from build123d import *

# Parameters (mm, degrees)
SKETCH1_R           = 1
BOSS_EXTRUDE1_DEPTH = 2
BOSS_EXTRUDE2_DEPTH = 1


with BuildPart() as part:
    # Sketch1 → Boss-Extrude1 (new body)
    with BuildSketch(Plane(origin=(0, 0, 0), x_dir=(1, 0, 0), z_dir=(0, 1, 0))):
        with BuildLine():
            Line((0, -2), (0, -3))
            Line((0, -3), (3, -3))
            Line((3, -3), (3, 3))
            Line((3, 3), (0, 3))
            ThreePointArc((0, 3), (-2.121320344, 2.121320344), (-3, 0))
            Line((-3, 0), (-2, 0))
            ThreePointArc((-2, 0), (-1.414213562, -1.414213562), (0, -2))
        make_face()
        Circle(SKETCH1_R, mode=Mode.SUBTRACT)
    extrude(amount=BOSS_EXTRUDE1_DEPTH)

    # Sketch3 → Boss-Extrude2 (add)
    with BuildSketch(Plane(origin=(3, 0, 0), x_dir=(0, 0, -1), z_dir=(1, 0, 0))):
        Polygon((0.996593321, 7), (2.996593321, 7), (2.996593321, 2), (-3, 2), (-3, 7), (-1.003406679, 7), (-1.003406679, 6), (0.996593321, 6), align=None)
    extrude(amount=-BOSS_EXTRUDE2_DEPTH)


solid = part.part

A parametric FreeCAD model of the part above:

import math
import FreeCAD as App
import Part
import Sketcher
Q = App.Units.Quantity

doc = App.newDocument("Part")
body = doc.addObject("PartDesign::Body", "Body")

# Sketch on XZ plane
sketch1 = body.newObject("Sketcher::SketchObject", "Sketch")
sketch1.AttachmentSupport = (doc.getObject("XZ_Plane"), [""])
sketch1.MapMode = "FlatFace"
sketch1.addGeometry([
    Part.LineSegment(App.Vector(0, 2, 0), App.Vector(0, 3, 0)),  # 0
    Part.LineSegment(App.Vector(0, 3, 0), App.Vector(3, 3, 0)),  # 1
    Part.LineSegment(App.Vector(3, 3, 0), App.Vector(3, -3, 0)),  # 2
    Part.LineSegment(App.Vector(3, -3, 0), App.Vector(0, -3, 0)),  # 3
    Part.ArcOfCircle(Part.Circle(App.Vector(0, 0, 0), App.Vector(0, 0, 1), 3), math.radians(180), math.radians(270)),  # 4
    Part.LineSegment(App.Vector(-3, 0, 0), App.Vector(-2, 0, 0)),  # 5
    Part.ArcOfCircle(Part.Circle(App.Vector(0, 0, 0), App.Vector(0, 0, 1), 2), math.radians(90), math.radians(180)),  # 6
    Part.Circle(App.Vector(0, 0, 0), App.Vector(0, 0, 1), 1),  # 7
], False)
sketch1.addConstraint([
    Sketcher.Constraint("Coincident", 0, 2, 1, 1),
    Sketcher.Constraint("Coincident", 1, 2, 2, 1),
    Sketcher.Constraint("Coincident", 2, 2, 3, 1),
    Sketcher.Constraint("Tangent", 3, 2, 4, 2),
    Sketcher.Constraint("Coincident", 4, 1, 5, 1),
    Sketcher.Constraint("Coincident", 5, 2, 6, 2),
    Sketcher.Constraint("Coincident", 6, 1, 0, 1),
    Sketcher.Constraint("Vertical", 0),
    Sketcher.Constraint("Horizontal", 1),
    Sketcher.Constraint("Vertical", 2),
    Sketcher.Constraint("Horizontal", 3),
    Sketcher.Constraint("Horizontal", 5),
    Sketcher.Constraint("Coincident", 4, 3, -1, 1),
    Sketcher.Constraint("Coincident", 6, 3, -1, 1),
    Sketcher.Constraint("Coincident", 7, 3, -1, 1),
    Sketcher.Constraint("Symmetric", 0, 2, 3, 2, -1, 1),
    Sketcher.Constraint("PointOnObject", 4, 1, -1),
    Sketcher.Constraint("Diameter", 7, Q("2 mm")),
    Sketcher.Constraint("Radius", 4, Q("3 mm")),
    Sketcher.Constraint("Radius", 6, Q("2 mm")),
    Sketcher.Constraint("DistanceX", 1, 1, 1, 2, Q("3 mm")),
])
pad1 = body.newObject("PartDesign::Pad", "Pad")
pad1.Profile = sketch1
pad1.Length = 2
pad1.Reversed = True

# Sketch on YZ plane
sketch2 = body.newObject("Sketcher::SketchObject", "Sketch001")
sketch2.AttachmentSupport = (doc.getObject("YZ_Plane"), [""])
sketch2.MapMode = "FlatFace"
sketch2.AttachmentOffset = App.Placement(App.Vector(0, 0, 3), App.Rotation())
sketch2.addGeometry([
    Part.LineSegment(App.Vector(7, -3, 0), App.Vector(7, -1, 0)),  # 0
    Part.LineSegment(App.Vector(7, -1, 0), App.Vector(6, -1, 0)),  # 1
    Part.LineSegment(App.Vector(6, -1, 0), App.Vector(6, 1, 0)),  # 2
    Part.LineSegment(App.Vector(6, 1, 0), App.Vector(7, 1, 0)),  # 3
    Part.LineSegment(App.Vector(7, 1, 0), App.Vector(7, 3, 0)),  # 4
    Part.LineSegment(App.Vector(7, 3, 0), App.Vector(2, 3, 0)),  # 5
    Part.LineSegment(App.Vector(2, 3, 0), App.Vector(2, -3, 0)),  # 6
    Part.LineSegment(App.Vector(2, -3, 0), App.Vector(7, -3, 0)),  # 7
], False)
sketch2.addConstraint([
    Sketcher.Constraint("Coincident", 0, 2, 1, 1),
    Sketcher.Constraint("Coincident", 1, 2, 2, 1),
    Sketcher.Constraint("Coincident", 2, 2, 3, 1),
    Sketcher.Constraint("Coincident", 3, 2, 4, 1),
    Sketcher.Constraint("Coincident", 4, 2, 5, 1),
    Sketcher.Constraint("Coincident", 5, 2, 6, 1),
    Sketcher.Constraint("Coincident", 6, 2, 7, 1),
    Sketcher.Constraint("Coincident", 7, 2, 0, 1),
    Sketcher.Constraint("Vertical", 0),
    Sketcher.Constraint("Horizontal", 1),
    Sketcher.Constraint("Vertical", 2),
    Sketcher.Constraint("Horizontal", 3),
    Sketcher.Constraint("Vertical", 4),
    Sketcher.Constraint("Horizontal", 5),
    Sketcher.Constraint("Vertical", 6),
    Sketcher.Constraint("Horizontal", 7),
    Sketcher.Constraint("Vertical", 0, 2, 3, 2),
    Sketcher.Constraint("Equal", 0, 2),
    Sketcher.Constraint("DistanceX", 1, 2, 1, 1, Q("1 mm")),
    Sketcher.Constraint("DistanceX", 5, 2, 5, 1, Q("5 mm")),
    Sketcher.Constraint("DistanceY", 0, 1, 0, 2, Q("2 mm")),
    Sketcher.Constraint("DistanceX", -1, 1, 0, 2, Q("7 mm")),
    Sketcher.Constraint("DistanceY", -1, 1, 4, 2, Q("3 mm")),
    Sketcher.Constraint("DistanceY", 4, 1, 4, 2, Q("1.996593 mm")),
])
pad2 = body.newObject("PartDesign::Pad", "Pad001")
pad2.Profile = sketch2
pad2.Length = 1
pad2.Reversed = True

doc.recompute()
